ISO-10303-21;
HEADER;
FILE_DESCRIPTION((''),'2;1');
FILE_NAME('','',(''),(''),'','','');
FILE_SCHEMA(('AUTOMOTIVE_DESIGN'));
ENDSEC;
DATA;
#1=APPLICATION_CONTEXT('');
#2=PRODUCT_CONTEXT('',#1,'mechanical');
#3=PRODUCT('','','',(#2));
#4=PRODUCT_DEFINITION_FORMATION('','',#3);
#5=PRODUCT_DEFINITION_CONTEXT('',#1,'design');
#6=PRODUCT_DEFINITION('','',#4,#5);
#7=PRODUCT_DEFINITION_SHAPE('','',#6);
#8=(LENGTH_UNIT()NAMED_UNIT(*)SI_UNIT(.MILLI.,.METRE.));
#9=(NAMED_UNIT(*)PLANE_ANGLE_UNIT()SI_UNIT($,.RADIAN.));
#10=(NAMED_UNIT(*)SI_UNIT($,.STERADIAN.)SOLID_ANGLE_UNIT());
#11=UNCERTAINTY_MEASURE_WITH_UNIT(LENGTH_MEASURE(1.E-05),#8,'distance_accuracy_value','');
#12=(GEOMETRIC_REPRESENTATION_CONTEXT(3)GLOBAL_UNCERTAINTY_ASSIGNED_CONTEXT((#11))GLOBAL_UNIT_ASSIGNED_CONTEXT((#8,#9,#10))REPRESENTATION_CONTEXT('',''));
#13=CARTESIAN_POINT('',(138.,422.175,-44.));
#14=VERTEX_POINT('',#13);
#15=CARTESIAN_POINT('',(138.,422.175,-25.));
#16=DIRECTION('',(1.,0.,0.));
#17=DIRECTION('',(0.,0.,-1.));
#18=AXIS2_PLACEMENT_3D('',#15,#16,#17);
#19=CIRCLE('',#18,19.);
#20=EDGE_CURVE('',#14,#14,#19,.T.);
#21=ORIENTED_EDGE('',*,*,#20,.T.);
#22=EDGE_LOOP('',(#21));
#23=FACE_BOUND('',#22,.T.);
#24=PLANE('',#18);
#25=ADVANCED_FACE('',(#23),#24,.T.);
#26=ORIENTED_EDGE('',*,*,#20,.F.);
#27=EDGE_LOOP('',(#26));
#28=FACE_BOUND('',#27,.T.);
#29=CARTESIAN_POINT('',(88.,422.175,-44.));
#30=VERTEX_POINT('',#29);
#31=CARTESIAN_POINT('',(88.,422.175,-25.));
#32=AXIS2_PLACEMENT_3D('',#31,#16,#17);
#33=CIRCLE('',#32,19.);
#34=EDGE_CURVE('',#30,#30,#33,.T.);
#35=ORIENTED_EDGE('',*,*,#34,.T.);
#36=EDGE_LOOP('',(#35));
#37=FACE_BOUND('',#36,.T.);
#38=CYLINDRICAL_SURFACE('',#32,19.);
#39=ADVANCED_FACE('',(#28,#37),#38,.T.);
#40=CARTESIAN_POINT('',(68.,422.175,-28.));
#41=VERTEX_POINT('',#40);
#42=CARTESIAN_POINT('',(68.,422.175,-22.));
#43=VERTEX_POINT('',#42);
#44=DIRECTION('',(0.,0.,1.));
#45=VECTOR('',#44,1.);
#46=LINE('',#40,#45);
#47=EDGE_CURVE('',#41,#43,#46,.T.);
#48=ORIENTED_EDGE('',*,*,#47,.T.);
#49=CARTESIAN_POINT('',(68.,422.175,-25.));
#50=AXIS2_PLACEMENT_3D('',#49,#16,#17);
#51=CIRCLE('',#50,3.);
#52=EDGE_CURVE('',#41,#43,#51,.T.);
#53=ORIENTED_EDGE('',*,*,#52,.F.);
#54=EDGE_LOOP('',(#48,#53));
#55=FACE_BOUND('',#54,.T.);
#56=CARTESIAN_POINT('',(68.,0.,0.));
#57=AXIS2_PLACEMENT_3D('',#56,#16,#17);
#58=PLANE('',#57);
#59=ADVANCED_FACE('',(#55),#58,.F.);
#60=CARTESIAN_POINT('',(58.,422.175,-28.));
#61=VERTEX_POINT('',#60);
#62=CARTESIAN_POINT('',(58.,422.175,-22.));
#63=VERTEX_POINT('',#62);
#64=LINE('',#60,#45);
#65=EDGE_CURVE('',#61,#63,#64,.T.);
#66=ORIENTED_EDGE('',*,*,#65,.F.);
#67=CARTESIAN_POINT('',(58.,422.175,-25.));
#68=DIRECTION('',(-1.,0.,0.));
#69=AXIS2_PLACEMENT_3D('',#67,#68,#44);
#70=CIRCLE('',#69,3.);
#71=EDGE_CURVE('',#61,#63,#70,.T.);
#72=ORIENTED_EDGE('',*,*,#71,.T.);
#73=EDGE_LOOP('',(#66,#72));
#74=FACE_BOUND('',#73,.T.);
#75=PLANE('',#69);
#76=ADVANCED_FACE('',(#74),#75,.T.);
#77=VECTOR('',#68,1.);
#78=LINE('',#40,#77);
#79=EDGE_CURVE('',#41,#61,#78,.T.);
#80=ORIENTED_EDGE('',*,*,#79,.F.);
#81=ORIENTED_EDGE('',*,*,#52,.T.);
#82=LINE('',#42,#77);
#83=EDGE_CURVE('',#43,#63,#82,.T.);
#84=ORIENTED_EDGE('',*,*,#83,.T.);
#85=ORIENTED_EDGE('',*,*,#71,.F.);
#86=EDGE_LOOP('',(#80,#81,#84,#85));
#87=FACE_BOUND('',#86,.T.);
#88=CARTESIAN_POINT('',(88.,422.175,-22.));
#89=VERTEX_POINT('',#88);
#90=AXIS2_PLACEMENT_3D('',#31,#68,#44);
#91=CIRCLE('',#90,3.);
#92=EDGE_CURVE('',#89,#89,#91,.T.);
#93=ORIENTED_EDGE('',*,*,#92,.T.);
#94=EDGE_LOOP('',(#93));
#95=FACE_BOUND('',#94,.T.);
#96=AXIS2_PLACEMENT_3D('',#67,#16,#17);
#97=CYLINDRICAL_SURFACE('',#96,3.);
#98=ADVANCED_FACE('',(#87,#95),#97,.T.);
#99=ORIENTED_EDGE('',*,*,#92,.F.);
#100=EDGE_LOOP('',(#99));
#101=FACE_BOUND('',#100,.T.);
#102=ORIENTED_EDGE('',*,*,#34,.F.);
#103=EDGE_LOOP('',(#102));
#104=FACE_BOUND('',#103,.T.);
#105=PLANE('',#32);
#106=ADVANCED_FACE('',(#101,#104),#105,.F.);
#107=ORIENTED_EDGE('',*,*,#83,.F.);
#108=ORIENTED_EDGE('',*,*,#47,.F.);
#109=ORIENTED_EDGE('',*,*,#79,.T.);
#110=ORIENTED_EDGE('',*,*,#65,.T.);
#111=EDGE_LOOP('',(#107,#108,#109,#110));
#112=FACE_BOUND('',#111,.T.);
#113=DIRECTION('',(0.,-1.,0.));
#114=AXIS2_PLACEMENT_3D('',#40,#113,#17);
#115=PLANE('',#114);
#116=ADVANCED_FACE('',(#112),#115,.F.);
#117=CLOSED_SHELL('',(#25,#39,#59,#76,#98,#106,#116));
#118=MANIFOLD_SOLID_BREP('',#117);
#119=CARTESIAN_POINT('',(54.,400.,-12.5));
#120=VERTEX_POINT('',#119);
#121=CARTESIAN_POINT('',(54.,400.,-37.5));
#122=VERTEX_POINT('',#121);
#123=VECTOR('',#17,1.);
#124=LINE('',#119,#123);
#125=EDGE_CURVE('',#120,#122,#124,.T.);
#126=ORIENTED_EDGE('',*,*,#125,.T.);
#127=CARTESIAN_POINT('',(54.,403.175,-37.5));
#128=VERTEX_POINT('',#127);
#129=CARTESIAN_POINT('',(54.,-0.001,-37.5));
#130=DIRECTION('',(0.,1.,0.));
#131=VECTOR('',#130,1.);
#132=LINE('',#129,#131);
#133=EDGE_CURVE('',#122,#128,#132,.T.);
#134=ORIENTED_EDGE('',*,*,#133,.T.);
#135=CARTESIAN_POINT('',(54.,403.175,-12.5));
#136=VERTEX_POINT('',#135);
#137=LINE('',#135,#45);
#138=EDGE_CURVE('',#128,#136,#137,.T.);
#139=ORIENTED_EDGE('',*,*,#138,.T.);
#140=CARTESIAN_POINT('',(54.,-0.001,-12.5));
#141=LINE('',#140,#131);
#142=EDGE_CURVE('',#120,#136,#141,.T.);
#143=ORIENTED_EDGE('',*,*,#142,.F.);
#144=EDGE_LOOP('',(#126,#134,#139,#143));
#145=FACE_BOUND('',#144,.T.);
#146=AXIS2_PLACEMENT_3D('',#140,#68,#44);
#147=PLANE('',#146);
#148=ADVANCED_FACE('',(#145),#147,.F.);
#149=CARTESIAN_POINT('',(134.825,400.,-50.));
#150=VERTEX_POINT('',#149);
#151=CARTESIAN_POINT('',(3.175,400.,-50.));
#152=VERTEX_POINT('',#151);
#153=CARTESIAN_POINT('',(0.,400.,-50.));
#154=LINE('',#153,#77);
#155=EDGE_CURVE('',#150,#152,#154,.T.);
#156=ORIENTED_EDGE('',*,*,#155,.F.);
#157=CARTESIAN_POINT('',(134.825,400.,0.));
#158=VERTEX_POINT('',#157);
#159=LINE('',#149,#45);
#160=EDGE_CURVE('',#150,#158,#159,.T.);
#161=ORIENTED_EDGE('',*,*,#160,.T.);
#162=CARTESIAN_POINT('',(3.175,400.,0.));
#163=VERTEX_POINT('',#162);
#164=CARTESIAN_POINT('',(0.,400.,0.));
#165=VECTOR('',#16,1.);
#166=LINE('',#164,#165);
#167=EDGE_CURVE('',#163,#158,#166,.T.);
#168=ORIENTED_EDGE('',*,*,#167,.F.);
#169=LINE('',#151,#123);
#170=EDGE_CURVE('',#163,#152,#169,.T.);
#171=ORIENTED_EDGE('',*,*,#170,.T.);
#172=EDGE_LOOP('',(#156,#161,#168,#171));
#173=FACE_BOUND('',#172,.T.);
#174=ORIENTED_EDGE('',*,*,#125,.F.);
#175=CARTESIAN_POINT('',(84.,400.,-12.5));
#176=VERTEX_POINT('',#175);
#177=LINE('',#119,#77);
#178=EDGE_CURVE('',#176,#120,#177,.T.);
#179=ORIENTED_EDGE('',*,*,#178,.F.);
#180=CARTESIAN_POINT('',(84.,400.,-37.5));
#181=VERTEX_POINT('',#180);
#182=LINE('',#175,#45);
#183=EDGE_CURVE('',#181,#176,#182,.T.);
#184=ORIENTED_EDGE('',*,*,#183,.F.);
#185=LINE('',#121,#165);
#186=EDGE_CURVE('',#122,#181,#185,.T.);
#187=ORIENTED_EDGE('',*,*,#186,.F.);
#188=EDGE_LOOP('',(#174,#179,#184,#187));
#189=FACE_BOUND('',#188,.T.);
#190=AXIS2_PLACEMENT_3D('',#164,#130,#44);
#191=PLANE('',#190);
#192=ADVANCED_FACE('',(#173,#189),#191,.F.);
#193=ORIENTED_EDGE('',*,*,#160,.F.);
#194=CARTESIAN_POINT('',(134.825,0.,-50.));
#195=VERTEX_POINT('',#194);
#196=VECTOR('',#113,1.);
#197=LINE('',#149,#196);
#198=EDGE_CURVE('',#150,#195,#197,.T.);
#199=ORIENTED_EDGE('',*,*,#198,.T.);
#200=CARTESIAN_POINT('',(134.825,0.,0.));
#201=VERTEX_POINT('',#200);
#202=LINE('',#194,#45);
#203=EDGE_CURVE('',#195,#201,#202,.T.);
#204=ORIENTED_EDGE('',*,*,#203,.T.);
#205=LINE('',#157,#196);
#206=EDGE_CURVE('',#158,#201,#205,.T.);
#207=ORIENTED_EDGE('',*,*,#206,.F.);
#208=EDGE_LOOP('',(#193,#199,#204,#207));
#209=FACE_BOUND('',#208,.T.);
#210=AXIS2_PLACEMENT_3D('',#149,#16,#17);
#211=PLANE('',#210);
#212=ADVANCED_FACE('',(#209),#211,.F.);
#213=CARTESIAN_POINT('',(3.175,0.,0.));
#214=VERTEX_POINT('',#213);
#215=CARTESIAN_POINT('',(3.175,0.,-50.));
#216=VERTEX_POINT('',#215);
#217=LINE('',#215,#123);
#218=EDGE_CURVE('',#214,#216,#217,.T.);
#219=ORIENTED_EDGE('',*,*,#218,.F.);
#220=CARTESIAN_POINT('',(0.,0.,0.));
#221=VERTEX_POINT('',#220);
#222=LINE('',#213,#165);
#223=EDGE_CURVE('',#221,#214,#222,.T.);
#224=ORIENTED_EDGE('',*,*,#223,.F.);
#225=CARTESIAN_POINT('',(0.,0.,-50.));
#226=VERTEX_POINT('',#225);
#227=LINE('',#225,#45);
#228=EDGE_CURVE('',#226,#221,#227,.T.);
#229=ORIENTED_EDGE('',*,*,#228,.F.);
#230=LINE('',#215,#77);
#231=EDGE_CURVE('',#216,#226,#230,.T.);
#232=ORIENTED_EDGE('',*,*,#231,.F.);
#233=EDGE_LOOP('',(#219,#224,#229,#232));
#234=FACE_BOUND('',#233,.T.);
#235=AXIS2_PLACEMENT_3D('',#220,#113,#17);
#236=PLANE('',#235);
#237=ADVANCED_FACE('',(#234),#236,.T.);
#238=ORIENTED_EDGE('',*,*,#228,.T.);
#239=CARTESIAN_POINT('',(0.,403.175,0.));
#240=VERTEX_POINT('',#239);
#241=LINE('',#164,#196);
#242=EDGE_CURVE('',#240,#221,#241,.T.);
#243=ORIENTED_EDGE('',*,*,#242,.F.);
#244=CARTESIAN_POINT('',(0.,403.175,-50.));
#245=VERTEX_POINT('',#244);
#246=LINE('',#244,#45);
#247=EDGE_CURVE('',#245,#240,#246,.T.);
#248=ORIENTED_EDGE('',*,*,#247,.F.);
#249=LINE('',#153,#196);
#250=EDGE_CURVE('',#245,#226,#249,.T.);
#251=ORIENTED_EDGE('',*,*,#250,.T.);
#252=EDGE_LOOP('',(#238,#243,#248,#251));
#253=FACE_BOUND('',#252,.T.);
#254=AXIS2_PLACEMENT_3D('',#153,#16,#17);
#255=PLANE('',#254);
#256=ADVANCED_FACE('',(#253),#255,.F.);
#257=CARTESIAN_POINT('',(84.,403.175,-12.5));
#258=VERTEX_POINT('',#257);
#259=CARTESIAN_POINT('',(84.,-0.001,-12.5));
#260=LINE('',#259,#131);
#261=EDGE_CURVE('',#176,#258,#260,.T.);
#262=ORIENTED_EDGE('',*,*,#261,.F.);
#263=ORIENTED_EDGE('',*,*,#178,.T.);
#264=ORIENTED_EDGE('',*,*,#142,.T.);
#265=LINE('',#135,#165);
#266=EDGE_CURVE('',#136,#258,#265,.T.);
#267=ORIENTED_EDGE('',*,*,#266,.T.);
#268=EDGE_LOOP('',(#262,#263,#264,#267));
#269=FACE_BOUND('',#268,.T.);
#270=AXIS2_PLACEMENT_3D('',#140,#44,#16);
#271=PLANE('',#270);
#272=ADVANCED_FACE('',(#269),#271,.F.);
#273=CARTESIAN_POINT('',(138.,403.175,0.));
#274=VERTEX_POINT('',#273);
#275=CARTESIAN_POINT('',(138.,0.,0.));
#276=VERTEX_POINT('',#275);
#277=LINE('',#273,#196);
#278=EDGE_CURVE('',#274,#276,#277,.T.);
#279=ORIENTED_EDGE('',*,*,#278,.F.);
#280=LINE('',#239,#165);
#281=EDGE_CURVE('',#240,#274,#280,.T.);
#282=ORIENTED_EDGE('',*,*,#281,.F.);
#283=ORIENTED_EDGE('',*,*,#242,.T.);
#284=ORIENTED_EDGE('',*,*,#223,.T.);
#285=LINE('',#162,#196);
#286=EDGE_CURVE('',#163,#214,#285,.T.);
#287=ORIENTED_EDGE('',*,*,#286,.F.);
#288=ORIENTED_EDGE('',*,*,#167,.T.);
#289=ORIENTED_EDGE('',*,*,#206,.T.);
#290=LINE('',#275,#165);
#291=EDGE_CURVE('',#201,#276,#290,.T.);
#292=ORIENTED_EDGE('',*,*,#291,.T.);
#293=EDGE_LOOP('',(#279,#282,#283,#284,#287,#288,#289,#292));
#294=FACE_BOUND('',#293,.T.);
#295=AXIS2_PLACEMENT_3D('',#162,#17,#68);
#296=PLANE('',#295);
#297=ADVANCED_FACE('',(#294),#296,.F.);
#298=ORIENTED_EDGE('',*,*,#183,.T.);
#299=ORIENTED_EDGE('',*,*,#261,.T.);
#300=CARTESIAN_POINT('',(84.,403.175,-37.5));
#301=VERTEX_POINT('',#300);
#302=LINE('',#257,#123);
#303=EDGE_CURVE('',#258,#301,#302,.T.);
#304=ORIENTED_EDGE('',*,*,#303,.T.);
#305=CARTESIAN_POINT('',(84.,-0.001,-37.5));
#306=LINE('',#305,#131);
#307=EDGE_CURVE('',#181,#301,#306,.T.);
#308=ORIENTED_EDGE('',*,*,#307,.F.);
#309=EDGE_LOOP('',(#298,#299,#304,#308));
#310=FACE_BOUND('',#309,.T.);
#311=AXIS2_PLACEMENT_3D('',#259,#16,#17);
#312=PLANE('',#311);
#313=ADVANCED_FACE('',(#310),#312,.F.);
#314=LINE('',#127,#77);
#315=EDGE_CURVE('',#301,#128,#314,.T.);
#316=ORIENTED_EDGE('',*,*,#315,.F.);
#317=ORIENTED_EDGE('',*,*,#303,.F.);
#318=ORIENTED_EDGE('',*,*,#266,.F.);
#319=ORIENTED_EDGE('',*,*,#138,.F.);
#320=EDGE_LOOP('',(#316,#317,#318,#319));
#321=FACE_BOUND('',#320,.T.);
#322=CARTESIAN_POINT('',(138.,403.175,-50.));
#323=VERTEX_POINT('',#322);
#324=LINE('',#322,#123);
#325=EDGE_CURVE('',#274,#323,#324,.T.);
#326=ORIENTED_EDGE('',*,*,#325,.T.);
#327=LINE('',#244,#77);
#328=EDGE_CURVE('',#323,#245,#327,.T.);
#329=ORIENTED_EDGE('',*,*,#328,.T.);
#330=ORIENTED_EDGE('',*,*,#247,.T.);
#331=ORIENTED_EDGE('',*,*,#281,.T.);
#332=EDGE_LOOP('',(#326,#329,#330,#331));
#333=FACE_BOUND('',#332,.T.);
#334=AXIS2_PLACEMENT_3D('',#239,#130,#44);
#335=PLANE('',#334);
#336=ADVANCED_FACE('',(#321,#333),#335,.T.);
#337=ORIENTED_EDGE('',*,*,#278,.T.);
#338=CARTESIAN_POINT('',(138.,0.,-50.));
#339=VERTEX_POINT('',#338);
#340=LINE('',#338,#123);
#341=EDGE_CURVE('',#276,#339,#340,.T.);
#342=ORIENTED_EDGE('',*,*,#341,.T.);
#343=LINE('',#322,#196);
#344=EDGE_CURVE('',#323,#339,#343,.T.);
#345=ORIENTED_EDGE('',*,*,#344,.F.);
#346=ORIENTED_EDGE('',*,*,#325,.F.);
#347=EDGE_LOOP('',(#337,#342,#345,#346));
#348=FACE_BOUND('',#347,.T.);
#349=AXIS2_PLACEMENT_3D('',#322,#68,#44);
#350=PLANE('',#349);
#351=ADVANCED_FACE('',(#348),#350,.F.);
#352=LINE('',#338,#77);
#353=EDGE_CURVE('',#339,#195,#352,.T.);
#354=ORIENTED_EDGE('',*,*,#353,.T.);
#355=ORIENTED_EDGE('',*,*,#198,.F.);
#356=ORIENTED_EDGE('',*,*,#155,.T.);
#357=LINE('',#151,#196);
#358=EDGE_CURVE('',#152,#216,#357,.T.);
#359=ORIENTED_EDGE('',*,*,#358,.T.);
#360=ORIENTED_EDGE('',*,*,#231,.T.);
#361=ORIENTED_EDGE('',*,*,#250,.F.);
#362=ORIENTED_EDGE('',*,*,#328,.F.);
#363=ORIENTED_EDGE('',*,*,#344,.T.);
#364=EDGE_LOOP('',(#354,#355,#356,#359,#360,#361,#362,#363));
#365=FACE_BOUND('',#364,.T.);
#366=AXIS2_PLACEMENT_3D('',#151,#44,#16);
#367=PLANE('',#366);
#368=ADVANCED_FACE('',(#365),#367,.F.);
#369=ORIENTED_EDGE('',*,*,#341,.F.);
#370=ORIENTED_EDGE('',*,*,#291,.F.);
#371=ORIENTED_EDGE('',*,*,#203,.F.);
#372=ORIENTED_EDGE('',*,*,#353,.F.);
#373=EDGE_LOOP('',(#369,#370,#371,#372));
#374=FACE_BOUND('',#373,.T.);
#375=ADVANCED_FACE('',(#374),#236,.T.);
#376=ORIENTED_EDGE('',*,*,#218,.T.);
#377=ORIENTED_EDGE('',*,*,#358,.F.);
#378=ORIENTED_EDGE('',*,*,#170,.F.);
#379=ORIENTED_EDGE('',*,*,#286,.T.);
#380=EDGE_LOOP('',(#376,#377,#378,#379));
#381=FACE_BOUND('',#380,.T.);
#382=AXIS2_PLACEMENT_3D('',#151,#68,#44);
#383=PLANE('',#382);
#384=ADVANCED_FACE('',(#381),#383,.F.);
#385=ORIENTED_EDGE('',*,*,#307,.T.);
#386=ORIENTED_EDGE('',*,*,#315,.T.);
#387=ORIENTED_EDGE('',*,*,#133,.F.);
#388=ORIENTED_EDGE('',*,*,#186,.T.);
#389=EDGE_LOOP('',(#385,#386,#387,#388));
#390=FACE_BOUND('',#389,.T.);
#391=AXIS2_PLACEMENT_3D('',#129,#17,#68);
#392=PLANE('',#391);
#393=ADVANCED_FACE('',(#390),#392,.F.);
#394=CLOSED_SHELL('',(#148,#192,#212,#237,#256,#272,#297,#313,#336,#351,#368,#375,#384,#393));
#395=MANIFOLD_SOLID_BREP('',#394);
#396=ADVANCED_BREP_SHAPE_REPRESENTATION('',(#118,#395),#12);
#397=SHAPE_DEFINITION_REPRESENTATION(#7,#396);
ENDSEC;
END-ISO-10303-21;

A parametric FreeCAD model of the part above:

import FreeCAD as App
import Part
import Sketcher

V = App.Vector

doc = App.newDocument("Part")
body = doc.addObject("PartDesign::Body", "Body")

sketch1 = body.newObject("Sketcher::SketchObject", "Sketch")
sketch1.AttachmentSupport = (doc.getObject("XZ_Plane"), [""])
sketch1.MapMode = "FlatFace"
sketch1.addGeometry([
    Part.LineSegment(V(0, -50, 0), V(0, 0, 0)),
    Part.LineSegment(V(0, 0, 0), V(3.2, 0, 0)),
    Part.LineSegment(V(3.2, 0, 0), V(3.2, -50, 0)),
    Part.LineSegment(V(3.2, -50, 0), V(0, -50, 0)),
], False)
sketch1.addConstraint([
    Sketcher.Constraint("Coincident", 0, 2, 1, 1),
    Sketcher.Constraint("Coincident", 1, 2, 2, 1),
    Sketcher.Constraint("Coincident", 2, 2, 3, 1),
    Sketcher.Constraint("Coincident", 3, 2, 0, 1),
    Sketcher.Constraint("Vertical", 0),
    Sketcher.Constraint("Horizontal", 1),
    Sketcher.Constraint("Vertical", 2),
    Sketcher.Constraint("Horizontal", 3),
    Sketcher.Constraint("Coincident", 0, 2, -1, 1),
    Sketcher.Constraint("DistanceY", 0, 1, 0, 2, 50.0),
    Sketcher.Constraint("DistanceX", 1, 1, 1, 2, 3.175),
])
pad1 = body.newObject("PartDesign::Pad", "Pad")
pad1.Profile = sketch1
pad1.Length = 400
pad1.Reversed = True
body2 = doc.addObject("PartDesign::Body", "Body001")

sketch2 = body2.newObject("Sketcher::SketchObject", "Sketch001")
sketch2.AttachmentSupport = (doc.getObject("XZ_Plane001"), [""])
sketch2.MapMode = "FlatFace"
sketch2.addGeometry([
    Part.LineSegment(V(134.8, -50, 0), V(134.8, 0, 0)),
    Part.LineSegment(V(134.8, 0, 0), V(138, 0, 0)),
    Part.LineSegment(V(138, 0, 0), V(138, -50, 0)),
    Part.LineSegment(V(138, -50, 0), V(134.8, -50, 0)),
], False)
sketch2.addConstraint([
    Sketcher.Constraint("Coincident", 0, 2, 1, 1),
    Sketcher.Constraint("Coincident", 1, 2, 2, 1),
    Sketcher.Constraint("Coincident", 2, 2, 3, 1),
    Sketcher.Constraint("Coincident", 3, 2, 0, 1),
    Sketcher.Constraint("Vertical", 0),
    Sketcher.Constraint("Horizontal", 1),
    Sketcher.Constraint("Vertical", 2),
    Sketcher.Constraint("Horizontal", 3),
    Sketcher.Constraint("PointOnObject", 0, 2, -1),
    Sketcher.Constraint("DistanceY", 0, 1, 0, 2, 50.0),
    Sketcher.Constraint("DistanceX", -1, 1, 1, 2, 138.0),
    Sketcher.Constraint("DistanceX", 1, 1, 1, 2, 3.175),
])
pad2 = body2.newObject("PartDesign::Pad", "Pad001")
pad2.Profile = sketch2
pad2.Length = 400
pad2.Reversed = True
body.AllowCompound = True
doc.recompute()

boolean = body.newObject("PartDesign::Boolean", "Boolean")
boolean.Type = "Fuse"
boolean.addObjects([body2])

sketch3 = body.newObject("Sketcher::SketchObject", "Sketch002")
sketch3.AttachmentSupport = (doc.getObject("XZ_Plane"), [""])
sketch3.MapMode = "FlatFace"
sketch3.AttachmentOffset = App.Placement(V(0, 0, -400), App.Rotation())
sketch3.addGeometry([
    Part.LineSegment(V(0, -50, 0), V(0, 0, 0)),
    Part.LineSegment(V(0, 0, 0), V(138, 0, 0)),
    Part.LineSegment(V(138, 0, 0), V(138, -50, 0)),
    Part.LineSegment(V(138, -50, 0), V(0, -50, 0)),
], False)
sketch3.addConstraint([
    Sketcher.Constraint("Coincident", 0, 2, 1, 1),
    Sketcher.Constraint("Coincident", 1, 2, 2, 1),
    Sketcher.Constraint("Coincident", 2, 2, 3, 1),
    Sketcher.Constraint("Coincident", 3, 2, 0, 1),
    Sketcher.Constraint("Vertical", 0),
    Sketcher.Constraint("Horizontal", 1),
    Sketcher.Constraint("Vertical", 2),
    Sketcher.Constraint("Horizontal", 3),
    Sketcher.Constraint("Coincident", 0, 2, -1, 1),
    Sketcher.Constraint("DistanceX", 1, 1, 1, 2, 138.0),
    Sketcher.Constraint("DistanceY", 0, 1, 0, 2, 50.0),
])
pad3 = body.newObject("PartDesign::Pad", "Pad002")
pad3.Profile = sketch3
pad3.Length = 3.175
pad3.Reversed = True

sketch4 = body.newObject("Sketcher::SketchObject", "Sketch003")
sketch4.AttachmentSupport = (doc.getObject("XZ_Plane"), [""])
sketch4.MapMode = "FlatFace"
sketch4.AttachmentOffset = App.Placement(V(0, 0, -403.175), App.Rotation())
sketch4.addGeometry([
    Part.LineSegment(V(54, -38, 0), V(54, -12, 0)),
    Part.LineSegment(V(54, -12, 0), V(84, -12, 0)),
    Part.LineSegment(V(84, -12, 0), V(84, -38, 0)),
    Part.LineSegment(V(84, -38, 0), V(54, -38, 0)),
], False)
sketch4.addConstraint([
    Sketcher.Constraint("Coincident", 0, 2, 1, 1),
    Sketcher.Constraint("Coincident", 1, 2, 2, 1),
    Sketcher.Constraint("Coincident", 2, 2, 3, 1),
    Sketcher.Constraint("Coincident", 3, 2, 0, 1),
    Sketcher.Constraint("Vertical", 0),
    Sketcher.Constraint("Horizontal", 1),
    Sketcher.Constraint("Vertical", 2),
    Sketcher.Constraint("Horizontal", 3),
    Sketcher.Constraint("DistanceX", 1, 1, 1, 2, 30.0),
    Sketcher.Constraint("DistanceY", 0, 1, 0, 2, 25.0),
    Sketcher.Constraint("DistanceX", -1, 1, 0, 2, 54.0),
    Sketcher.Constraint("DistanceY", 0, 2, -1, 1, 12.5),
])
pocket1 = body.newObject("PartDesign::Pocket", "Pocket")
pocket1.Profile = sketch4
pocket1.Type = "UpToFirst"
pocket1.Reversed = True
body3 = doc.addObject("PartDesign::Body", "Body002")

sketch5 = body3.newObject("Sketcher::SketchObject", "Sketch004")
sketch5.AttachmentSupport = (doc.getObject("YZ_Plane002"), [""])
sketch5.MapMode = "FlatFace"
sketch5.AttachmentOffset = App.Placement(V(0, 0, 138), App.Rotation())
sketch5.addGeometry(Part.Circle(V(422, -25, 0), V(0, 0, 1), 19), False)
sketch5.addConstraint([
    Sketcher.Constraint("Diameter", 0, 38.0),
    Sketcher.Constraint("DistanceY", 0, 3, -1, 1, 25.0),
    Sketcher.Constraint("DistanceX", -1, 1, 0, 3, 422.175),
])
pad4 = body3.newObject("PartDesign::Pad", "Pad003")
pad4.Profile = sketch5
pad4.Length = 50
pad4.Reversed = True

sketch6 = body3.newObject("Sketcher::SketchObject", "Sketch005")
sketch6.AttachmentSupport = (doc.getObject("YZ_Plane002"), [""])
sketch6.MapMode = "FlatFace"
sketch6.AttachmentOffset = App.Placement(V(0, 0, 88), App.Rotation())
sketch6.addGeometry(Part.Circle(V(422.2, -25, 0), V(0, 0, 1), 3), False)
sketch6.addConstraint([
    Sketcher.Constraint("Diameter", 0, 6.0),
    Sketcher.Constraint("DistanceY", 0, 3, -1, 1, 25.0),
    Sketcher.Constraint("DistanceX", -1, 1, 0, 3, 422.175),
])
pad5 = body3.newObject("PartDesign::Pad", "Pad004")
pad5.Profile = sketch6
pad5.Length = 30
pad5.Reversed = True

sketch7 = body3.newObject("Sketcher::SketchObject", "Sketch006")
sketch7.AttachmentSupport = (doc.getObject("YZ_Plane002"), [""])
sketch7.MapMode = "FlatFace"
sketch7.AttachmentOffset = App.Placement(V(0, 0, 58), App.Rotation())
sketch7.addGeometry([
    Part.LineSegment(V(425.2, -28, 0), V(422.2, -28, 0)),
    Part.LineSegment(V(422.2, -28, 0), V(422.2, -22, 0)),
    Part.LineSegment(V(422.2, -22, 0), V(425.2, -22, 0)),
    Part.LineSegment(V(425.2, -22, 0), V(425.2, -28, 0)),
], False)
sketch7.addConstraint([
    Sketcher.Constraint("Coincident", 0, 2, 1, 1),
    Sketcher.Constraint("Coincident", 1, 2, 2, 1),
    Sketcher.Constraint("Coincident", 2, 2, 3, 1),
    Sketcher.Constraint("Coincident", 3, 2, 0, 1),
    Sketcher.Constraint("Horizontal", 0),
    Sketcher.Constraint("Vertical", 1),
    Sketcher.Constraint("Horizontal", 2),
    Sketcher.Constraint("Vertical", 3),
    Sketcher.Constraint("DistanceX", 0, 2, 0, 1, 3.0),
    Sketcher.Constraint("DistanceY", 1, 1, 1, 2, 6.0),
    Sketcher.Constraint("DistanceY", 0, 2, -1, 1, 28.0),
    Sketcher.Constraint("DistanceX", -1, 1, 0, 2, 422.175),
])
pocket2 = body3.newObject("PartDesign::Pocket", "Pocket001")
pocket2.Profile = sketch7
pocket2.Length = 10
pocket2.Reversed = True

doc.recompute()
